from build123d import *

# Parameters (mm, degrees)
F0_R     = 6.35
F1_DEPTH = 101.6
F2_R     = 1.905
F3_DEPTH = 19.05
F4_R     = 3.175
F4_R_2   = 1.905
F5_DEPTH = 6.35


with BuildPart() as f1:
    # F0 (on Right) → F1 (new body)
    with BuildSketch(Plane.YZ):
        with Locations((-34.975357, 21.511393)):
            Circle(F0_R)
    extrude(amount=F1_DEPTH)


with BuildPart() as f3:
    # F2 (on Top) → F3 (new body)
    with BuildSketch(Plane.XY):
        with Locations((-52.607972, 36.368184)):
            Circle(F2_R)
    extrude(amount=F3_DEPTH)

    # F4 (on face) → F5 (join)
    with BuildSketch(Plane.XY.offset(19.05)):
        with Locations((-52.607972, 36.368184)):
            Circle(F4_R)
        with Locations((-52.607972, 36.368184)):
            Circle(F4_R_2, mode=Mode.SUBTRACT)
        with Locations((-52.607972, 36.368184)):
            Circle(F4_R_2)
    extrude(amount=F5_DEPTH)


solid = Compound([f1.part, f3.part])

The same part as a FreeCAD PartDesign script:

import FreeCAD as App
import Part
import Sketcher

V = App.Vector
Q = App.Units.Quantity

doc = App.newDocument("Part")
body = doc.addObject("PartDesign::Body", "Body")

# Sketch on YZ plane
sketch1 = doc.addObject("Sketcher::SketchObject", "Sketch")
body.addObject(sketch1)
sketch1.AttachmentSupport = (doc.YZ_Plane, [""])
sketch1.MapMode = "FlatFace"
sketch1.addGeometry(Part.Circle(V(-35, 22, 0), V(0, 0, 1), 6), False)
sketch1.addConstraint([
    Sketcher.Constraint("Diameter", 0, Q("0.5 in")),
    Sketcher.Constraint("DistanceX", 0, 3, -1, 1, Q("34.975357 mm")),
    Sketcher.Constraint("DistanceY", -1, 1, 0, 3, Q("21.511393 mm")),
])
pad1 = doc.addObject("PartDesign::Pad", "Pad")
body.addObject(pad1)
pad1.Profile = sketch1
pad1.Length = Q("4 in")
body2 = doc.addObject("PartDesign::Body", "Body001")

# Sketch on XY plane
sketch2 = doc.addObject("Sketcher::SketchObject", "Sketch001")
body2.addObject(sketch2)
sketch2.AttachmentSupport = (doc.getObject("XY_Plane001"), [""])
sketch2.MapMode = "FlatFace"
sketch2.addGeometry(Part.Circle(V(-52.6, 36.4, 0), V(0, 0, 1), 1.9), False)
sketch2.addConstraint([
    Sketcher.Constraint("Diameter", 0, Q("0.15 in")),
    Sketcher.Constraint("DistanceX", 0, 3, -1, 1, Q("52.607972 mm")),
    Sketcher.Constraint("DistanceY", -1, 1, 0, 3, Q("36.368184 mm")),
])
pad2 = doc.addObject("PartDesign::Pad", "Pad001")
body2.addObject(pad2)
pad2.Profile = sketch2
pad2.Length = Q("0.75 in")

# Sketch on XY plane
sketch3 = doc.addObject("Sketcher::SketchObject", "Sketch002")
body2.addObject(sketch3)
sketch3.AttachmentSupport = (doc.getObject("XY_Plane001"), [""])
sketch3.MapMode = "FlatFace"
sketch3.AttachmentOffset = App.Placement(V(0, 0, 0.75 * 25.4), App.Rotation())
sketch3.addGeometry(Part.Circle(V(-52.6, 36.4, 0), V(0, 0, 1), 3.2), False)
sketch3.addConstraint([
    Sketcher.Constraint("Diameter", 0, Q("0.25 in")),
    Sketcher.Constraint("DistanceX", 0, 3, -1, 1, Q("52.607972 mm")),
    Sketcher.Constraint("DistanceY", -1, 1, 0, 3, Q("36.368184 mm")),
])
pad3 = doc.addObject("PartDesign::Pad", "Pad002")
body2.addObject(pad3)
pad3.Profile = sketch3
pad3.Length = Q("0.25 in")

doc.recompute()
